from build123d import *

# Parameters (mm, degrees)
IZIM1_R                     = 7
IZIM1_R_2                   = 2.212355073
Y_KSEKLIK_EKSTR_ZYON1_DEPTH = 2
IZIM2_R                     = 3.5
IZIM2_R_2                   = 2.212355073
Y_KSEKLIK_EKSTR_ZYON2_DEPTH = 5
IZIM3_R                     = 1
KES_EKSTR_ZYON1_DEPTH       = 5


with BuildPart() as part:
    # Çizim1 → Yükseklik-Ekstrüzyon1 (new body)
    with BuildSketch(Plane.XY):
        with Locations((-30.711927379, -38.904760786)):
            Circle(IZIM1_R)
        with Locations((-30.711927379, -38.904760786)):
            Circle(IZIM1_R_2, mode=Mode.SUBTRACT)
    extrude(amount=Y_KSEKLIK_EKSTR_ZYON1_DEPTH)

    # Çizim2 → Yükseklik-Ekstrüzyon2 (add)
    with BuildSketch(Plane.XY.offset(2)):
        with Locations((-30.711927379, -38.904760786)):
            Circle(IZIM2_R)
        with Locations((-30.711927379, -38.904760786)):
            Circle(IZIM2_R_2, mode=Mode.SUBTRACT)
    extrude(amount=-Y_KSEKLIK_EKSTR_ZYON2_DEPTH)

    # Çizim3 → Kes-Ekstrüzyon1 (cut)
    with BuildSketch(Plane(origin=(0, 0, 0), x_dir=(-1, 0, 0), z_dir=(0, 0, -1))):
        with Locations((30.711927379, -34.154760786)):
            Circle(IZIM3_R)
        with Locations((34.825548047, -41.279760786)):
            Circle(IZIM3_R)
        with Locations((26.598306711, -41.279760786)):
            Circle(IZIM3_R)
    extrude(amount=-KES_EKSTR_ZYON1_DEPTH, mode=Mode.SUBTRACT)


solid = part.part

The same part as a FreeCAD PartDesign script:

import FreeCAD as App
import Part
import Sketcher

V = App.Vector
Q = App.Units.Quantity

doc = App.newDocument("Part")
body = doc.addObject("PartDesign::Body", "Body")

sketch1 = body.newObject("Sketcher::SketchObject", "Sketch")
sketch1.AttachmentSupport = (doc.getObject("XY_Plane"), [""])
sketch1.MapMode = "FlatFace"
sketch1.addGeometry(Part.Circle(V(-30.7, -38.9, 0), V(0, 0, 1), 7), False)
sketch1.addGeometry(Part.Circle(V(-30.7, -38.9, 0), V(0, 0, 1), 2.2), False)
sketch1.addConstraint(Sketcher.Constraint("Coincident", 1, 3, 0, 3))
sketch1.addConstraint(Sketcher.Constraint("Diameter", 0, Q("14 mm")))
sketch1.addConstraint(Sketcher.Constraint("Diameter", 1, Q("4.42471 mm")))
sketch1.addConstraint(Sketcher.Constraint("DistanceY", 0, 3, -1, 1, Q("38.904761 mm")))
sketch1.addConstraint(Sketcher.Constraint("DistanceX", 0, 3, -1, 1, Q("30.711927 mm")))
pad1 = body.newObject("PartDesign::Pad", "Pad")
pad1.Profile = sketch1
pad1.Length = 2

sketch2 = body.newObject("Sketcher::SketchObject", "Sketch001")
sketch2.AttachmentSupport = (doc.getObject("XY_Plane"), [""])
sketch2.MapMode = "FlatFace"
sketch2.AttachmentOffset = App.Placement(V(0, 0, 2), App.Rotation())
sketch2.addGeometry(Part.Circle(V(-30.7, -38.9, 0), V(0, 0, 1), 3.5), False)
sketch2.addGeometry(Part.Circle(V(-30.7, -38.9, 0), V(0, 0, 1), 2.2), False)
sketch2.addConstraint(Sketcher.Constraint("Coincident", 1, 3, 0, 3))
sketch2.addConstraint(Sketcher.Constraint("Diameter", 0, Q("7 mm")))
sketch2.addConstraint(Sketcher.Constraint("Diameter", 1, Q("4.42471 mm")))
sketch2.addConstraint(Sketcher.Constraint("DistanceY", 0, 3, -1, 1, Q("38.904761 mm")))
sketch2.addConstraint(Sketcher.Constraint("DistanceX", 0, 3, -1, 1, Q("30.711927 mm")))
pad2 = body.newObject("PartDesign::Pad", "Pad001")
pad2.Profile = sketch2
pad2.Length = 5
pad2.Reversed = True

sketch3 = body.newObject("Sketcher::SketchObject", "Sketch002")
sketch3.AttachmentSupport = (doc.getObject("XY_Plane"), [""])
sketch3.MapMode = "FlatFace"
sketch3.addGeometry(Part.Circle(V(-30.7, -34.2, 0), V(0, 0, 1), 1), False)
sketch3.addGeometry(Part.Circle(V(-34.8, -41.3, 0), V(0, 0, 1), 1), False)
sketch3.addGeometry(Part.Circle(V(-26.6, -41.3, 0), V(0, 0, 1), 1), False)
sketch3.addConstraint(Sketcher.Constraint("Equal", 0, 1))
sketch3.addConstraint(Sketcher.Constraint("Equal", 1, 2))
sketch3.addConstraint(Sketcher.Constraint("Horizontal", 1, 3, 2, 3))
sketch3.addConstraint(Sketcher.Constraint("Diameter", 0, Q("2 mm")))
sketch3.addConstraint(Sketcher.Constraint("DistanceY", 1, 3, 0, 3, Q("7.125 mm")))
sketch3.addConstraint(Sketcher.Constraint("DistanceY", 0, 3, -1, 1, Q("34.154761 mm")))
sketch3.addConstraint(Sketcher.Constraint("DistanceX", 1, 3, -1, 1, Q("34.825548 mm")))
sketch3.addConstraint(Sketcher.Constraint("DistanceX", 1, 3, 0, 3, Q("4.113621 mm")))
sketch3.addConstraint(Sketcher.Constraint("DistanceX", 0, 3, 2, 3, Q("4.113621 mm")))
pocket1 = body.newObject("PartDesign::Pocket", "Pocket")
pocket1.Profile = sketch3
pocket1.Length = 5
pocket1.Reversed = True

doc.recompute()
